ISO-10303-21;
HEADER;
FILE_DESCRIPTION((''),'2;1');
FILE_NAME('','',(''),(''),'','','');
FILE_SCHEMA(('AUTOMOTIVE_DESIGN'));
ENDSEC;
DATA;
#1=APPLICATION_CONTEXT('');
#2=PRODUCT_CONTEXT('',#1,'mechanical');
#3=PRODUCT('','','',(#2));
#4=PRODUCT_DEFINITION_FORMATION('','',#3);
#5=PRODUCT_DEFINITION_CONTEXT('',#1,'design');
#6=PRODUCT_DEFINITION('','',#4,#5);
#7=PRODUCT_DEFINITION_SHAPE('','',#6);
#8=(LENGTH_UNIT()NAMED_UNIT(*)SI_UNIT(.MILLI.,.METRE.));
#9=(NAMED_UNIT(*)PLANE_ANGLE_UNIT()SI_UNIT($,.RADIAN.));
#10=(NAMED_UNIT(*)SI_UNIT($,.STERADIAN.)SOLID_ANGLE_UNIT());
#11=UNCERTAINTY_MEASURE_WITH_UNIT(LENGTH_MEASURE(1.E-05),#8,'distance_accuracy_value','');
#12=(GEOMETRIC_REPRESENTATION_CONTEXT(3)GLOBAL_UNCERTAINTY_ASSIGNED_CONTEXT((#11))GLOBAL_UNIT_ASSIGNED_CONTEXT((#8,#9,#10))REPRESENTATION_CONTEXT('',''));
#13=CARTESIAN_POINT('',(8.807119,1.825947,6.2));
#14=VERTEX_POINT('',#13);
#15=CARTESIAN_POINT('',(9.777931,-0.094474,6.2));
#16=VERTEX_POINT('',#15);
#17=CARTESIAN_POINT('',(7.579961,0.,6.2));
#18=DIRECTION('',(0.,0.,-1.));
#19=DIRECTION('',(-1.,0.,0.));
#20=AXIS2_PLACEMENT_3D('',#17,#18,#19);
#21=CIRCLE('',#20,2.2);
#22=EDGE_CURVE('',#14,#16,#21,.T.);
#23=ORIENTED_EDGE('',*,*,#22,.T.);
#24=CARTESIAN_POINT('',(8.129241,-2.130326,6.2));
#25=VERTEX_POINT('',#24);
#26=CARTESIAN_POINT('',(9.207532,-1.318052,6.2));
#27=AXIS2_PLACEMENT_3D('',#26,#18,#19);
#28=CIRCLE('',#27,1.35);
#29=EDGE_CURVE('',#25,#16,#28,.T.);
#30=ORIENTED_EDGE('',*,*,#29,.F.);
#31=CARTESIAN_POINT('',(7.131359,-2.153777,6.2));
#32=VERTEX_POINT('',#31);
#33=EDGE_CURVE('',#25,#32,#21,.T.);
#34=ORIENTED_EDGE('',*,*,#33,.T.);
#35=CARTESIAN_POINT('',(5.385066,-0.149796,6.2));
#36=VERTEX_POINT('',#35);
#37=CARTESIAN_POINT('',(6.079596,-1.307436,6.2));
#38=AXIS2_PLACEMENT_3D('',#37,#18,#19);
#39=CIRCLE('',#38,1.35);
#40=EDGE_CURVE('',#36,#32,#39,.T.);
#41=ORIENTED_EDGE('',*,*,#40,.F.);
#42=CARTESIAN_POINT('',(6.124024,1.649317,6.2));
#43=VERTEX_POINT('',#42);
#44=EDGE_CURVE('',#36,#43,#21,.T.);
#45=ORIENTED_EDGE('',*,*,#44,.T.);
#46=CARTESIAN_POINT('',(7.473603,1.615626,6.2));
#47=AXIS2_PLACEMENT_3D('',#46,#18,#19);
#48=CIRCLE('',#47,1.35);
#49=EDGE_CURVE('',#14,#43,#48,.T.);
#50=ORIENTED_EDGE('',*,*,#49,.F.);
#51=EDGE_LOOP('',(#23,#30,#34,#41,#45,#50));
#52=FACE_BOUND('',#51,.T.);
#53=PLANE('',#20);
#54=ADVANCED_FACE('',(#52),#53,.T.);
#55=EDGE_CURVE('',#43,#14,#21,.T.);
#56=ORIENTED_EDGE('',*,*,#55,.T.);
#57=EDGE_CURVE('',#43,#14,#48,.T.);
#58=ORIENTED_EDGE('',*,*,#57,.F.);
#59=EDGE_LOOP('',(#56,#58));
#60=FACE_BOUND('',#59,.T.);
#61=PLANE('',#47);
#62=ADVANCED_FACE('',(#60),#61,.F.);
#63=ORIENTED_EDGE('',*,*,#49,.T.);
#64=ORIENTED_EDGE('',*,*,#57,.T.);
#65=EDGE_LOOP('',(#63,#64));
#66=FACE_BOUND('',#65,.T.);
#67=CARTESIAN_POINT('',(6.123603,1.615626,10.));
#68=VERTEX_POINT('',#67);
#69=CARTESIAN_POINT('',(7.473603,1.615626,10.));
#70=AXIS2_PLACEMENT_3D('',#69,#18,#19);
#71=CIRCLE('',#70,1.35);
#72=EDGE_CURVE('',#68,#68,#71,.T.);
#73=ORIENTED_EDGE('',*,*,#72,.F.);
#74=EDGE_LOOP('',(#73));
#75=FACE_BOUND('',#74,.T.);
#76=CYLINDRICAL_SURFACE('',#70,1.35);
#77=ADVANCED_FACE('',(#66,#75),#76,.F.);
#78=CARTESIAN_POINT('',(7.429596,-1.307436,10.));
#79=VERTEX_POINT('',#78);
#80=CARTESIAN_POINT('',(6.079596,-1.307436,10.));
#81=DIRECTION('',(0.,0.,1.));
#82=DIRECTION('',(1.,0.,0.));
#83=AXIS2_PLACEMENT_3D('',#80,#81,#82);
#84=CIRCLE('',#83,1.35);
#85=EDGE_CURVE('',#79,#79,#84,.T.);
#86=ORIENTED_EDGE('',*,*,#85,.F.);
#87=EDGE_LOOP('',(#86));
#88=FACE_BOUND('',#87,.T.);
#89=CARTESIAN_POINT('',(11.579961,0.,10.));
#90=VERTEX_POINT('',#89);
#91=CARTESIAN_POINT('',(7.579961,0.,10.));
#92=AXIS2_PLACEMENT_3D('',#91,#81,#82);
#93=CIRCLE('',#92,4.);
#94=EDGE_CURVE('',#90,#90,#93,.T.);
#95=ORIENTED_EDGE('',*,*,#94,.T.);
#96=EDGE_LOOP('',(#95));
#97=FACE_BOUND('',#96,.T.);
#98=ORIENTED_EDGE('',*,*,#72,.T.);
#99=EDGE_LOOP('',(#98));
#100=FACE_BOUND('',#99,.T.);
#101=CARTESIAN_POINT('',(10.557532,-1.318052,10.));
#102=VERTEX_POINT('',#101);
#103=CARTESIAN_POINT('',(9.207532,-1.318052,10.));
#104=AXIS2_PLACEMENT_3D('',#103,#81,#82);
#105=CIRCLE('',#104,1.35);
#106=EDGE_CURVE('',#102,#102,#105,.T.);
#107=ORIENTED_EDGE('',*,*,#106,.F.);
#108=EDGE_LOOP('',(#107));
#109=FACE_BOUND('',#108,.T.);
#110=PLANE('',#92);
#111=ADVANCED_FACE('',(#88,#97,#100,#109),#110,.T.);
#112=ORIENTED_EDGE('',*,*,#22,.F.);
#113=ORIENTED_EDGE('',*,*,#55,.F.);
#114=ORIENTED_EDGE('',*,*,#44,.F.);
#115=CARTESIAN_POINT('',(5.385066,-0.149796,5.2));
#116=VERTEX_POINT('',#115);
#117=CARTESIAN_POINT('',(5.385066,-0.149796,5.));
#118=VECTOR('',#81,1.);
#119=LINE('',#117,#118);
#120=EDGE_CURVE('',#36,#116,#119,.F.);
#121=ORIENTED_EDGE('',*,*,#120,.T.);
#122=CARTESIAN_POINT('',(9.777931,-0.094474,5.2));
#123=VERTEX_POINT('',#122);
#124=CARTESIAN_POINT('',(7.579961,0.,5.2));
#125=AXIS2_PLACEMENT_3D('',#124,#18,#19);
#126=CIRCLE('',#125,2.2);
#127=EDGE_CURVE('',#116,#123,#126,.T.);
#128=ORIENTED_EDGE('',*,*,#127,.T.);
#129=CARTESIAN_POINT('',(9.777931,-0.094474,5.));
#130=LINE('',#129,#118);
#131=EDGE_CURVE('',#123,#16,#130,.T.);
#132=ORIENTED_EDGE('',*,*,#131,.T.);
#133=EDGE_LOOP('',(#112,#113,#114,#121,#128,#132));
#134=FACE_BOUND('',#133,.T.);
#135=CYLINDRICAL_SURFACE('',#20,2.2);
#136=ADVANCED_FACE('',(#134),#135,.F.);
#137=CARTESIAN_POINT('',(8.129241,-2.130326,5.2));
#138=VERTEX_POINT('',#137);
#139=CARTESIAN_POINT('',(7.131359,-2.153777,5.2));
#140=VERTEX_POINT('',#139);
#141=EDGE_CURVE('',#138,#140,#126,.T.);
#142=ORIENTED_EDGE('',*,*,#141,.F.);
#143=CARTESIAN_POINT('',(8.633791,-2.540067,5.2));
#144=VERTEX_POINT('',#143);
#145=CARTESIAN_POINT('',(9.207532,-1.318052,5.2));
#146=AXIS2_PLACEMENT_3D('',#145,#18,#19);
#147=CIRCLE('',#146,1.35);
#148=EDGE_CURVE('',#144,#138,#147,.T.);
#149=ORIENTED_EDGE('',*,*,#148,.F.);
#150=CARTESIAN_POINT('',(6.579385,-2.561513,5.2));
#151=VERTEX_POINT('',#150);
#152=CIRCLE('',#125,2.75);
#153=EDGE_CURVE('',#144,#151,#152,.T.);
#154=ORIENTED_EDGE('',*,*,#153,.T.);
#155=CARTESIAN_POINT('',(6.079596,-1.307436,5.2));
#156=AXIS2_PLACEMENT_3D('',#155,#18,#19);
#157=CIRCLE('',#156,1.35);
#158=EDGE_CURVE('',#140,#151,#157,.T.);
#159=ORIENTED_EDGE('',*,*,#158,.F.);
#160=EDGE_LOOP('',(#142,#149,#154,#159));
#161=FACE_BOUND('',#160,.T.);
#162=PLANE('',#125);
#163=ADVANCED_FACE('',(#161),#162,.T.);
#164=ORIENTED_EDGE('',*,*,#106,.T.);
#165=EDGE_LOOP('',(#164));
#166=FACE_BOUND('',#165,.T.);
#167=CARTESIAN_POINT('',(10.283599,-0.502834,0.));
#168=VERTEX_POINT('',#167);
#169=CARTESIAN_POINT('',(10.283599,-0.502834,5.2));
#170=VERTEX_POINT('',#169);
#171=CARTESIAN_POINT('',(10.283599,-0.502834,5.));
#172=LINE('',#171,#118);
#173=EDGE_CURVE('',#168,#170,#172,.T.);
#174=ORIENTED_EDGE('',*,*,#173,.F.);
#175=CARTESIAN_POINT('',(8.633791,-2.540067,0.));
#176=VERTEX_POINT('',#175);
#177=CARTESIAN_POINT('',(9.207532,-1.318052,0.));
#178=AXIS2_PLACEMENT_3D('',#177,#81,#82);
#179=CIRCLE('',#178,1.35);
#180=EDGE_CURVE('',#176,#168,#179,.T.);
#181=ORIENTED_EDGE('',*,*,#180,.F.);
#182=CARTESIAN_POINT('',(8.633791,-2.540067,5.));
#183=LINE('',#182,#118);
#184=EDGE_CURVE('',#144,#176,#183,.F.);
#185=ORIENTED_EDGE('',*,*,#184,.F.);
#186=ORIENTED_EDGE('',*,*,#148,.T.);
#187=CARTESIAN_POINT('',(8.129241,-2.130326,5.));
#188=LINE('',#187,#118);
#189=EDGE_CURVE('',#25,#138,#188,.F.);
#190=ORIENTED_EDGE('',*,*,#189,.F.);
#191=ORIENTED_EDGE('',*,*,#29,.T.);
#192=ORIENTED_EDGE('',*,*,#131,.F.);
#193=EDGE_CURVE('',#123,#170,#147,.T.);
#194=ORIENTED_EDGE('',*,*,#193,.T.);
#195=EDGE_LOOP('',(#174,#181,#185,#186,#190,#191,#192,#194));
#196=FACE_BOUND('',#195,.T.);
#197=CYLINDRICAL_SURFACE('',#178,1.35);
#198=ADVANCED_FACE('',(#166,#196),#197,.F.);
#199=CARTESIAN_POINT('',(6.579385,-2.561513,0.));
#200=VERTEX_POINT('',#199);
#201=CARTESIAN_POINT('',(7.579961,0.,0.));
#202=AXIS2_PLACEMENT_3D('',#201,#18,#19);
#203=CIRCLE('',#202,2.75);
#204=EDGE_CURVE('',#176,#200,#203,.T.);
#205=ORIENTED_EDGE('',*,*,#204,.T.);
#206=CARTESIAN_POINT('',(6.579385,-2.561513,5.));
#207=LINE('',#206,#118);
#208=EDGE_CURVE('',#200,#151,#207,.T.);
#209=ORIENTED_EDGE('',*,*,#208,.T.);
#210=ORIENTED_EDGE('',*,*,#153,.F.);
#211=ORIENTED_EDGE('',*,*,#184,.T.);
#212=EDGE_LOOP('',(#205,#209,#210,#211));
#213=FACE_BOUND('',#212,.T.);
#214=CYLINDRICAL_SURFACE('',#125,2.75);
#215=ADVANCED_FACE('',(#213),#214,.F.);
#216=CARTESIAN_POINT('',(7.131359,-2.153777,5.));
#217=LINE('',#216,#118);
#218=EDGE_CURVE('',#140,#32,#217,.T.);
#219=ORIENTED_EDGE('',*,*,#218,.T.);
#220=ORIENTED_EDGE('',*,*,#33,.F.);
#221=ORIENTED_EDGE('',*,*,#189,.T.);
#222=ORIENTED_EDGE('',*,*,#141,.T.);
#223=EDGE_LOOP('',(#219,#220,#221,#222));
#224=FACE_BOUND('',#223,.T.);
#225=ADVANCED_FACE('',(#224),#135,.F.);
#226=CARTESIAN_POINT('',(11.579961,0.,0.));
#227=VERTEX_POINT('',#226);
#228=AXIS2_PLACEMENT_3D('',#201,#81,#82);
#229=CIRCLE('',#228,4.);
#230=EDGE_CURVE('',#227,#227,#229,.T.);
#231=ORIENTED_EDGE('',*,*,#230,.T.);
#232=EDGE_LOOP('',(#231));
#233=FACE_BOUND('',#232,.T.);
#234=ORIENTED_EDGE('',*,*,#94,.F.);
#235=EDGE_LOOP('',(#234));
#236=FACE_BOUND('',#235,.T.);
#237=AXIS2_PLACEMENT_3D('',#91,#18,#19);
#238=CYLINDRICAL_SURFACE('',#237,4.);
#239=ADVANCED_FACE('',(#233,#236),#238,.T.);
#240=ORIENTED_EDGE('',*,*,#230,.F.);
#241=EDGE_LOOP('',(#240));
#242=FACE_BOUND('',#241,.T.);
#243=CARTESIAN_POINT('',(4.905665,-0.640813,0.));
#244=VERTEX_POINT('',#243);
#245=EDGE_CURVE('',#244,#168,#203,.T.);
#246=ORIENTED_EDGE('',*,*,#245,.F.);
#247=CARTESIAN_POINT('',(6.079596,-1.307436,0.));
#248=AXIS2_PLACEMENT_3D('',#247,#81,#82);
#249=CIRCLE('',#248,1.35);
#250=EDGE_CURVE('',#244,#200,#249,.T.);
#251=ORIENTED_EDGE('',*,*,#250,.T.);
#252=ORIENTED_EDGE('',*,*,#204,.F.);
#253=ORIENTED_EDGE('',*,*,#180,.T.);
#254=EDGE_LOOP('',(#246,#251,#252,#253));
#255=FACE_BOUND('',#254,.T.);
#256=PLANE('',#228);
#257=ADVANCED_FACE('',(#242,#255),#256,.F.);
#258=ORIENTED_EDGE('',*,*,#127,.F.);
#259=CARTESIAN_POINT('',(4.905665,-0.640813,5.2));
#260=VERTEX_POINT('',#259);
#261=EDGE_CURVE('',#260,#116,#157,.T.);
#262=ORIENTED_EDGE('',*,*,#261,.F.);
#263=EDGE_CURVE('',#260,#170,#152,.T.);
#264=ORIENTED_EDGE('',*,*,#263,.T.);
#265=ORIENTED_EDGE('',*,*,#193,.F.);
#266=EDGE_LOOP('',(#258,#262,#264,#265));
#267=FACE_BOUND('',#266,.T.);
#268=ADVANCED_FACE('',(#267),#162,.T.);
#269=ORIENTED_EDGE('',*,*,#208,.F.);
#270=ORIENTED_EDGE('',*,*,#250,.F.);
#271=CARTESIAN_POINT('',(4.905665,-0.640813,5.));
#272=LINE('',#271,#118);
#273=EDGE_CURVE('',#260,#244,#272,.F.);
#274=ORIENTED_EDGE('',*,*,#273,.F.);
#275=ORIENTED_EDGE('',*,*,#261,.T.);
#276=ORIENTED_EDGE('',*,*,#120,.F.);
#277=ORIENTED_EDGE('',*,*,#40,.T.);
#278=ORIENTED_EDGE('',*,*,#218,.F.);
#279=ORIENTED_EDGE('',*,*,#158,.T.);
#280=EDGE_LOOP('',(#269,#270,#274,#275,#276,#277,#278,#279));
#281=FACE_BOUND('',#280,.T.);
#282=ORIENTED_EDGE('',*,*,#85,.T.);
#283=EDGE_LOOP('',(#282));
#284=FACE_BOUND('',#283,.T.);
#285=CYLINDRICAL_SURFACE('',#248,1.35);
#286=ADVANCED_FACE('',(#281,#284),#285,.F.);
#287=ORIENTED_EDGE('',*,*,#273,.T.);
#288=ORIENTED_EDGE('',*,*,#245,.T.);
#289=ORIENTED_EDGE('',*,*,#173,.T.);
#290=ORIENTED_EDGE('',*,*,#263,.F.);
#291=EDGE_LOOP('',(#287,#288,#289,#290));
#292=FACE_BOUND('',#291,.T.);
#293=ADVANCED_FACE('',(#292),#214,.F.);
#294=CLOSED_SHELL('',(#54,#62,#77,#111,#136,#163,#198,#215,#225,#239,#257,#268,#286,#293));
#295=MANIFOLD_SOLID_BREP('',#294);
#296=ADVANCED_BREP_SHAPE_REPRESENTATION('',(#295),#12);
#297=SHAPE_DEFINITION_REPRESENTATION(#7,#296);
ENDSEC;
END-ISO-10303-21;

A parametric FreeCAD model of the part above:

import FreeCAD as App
import Part
import Sketcher
from FreeCAD import Vector
Q = App.Units.Quantity

doc = App.newDocument("Part")
body = doc.addObject("PartDesign::Body", "Body")

# Sketch on XY plane
sketch1 = body.newObject("Sketcher::SketchObject", "Sketch")
sketch1.AttachmentSupport = (doc.getObject("XY_Plane"), [""])
sketch1.MapMode = "FlatFace"
sketch1.addGeometry(Part.Circle(Vector(7.579961, 0, 0), Vector(0, 0, 1), 4), False)
sketch1.addConstraint(Sketcher.Constraint("PointOnObject", 0, 3, -1))
sketch1.addConstraint(Sketcher.Constraint("Diameter", 0, Q("8 mm")))
sketch1.addConstraint(Sketcher.Constraint("DistanceX", -1, 1, 0, 3, Q("7.579961 mm")))
pad1 = body.newObject("PartDesign::Pad", "Pad")
pad1.Profile = sketch1
pad1.Length = 10

# Sketch on XY plane
sketch2 = body.newObject("Sketcher::SketchObject", "Sketch001")
sketch2.AttachmentSupport = (doc.getObject("XY_Plane"), [""])
sketch2.MapMode = "FlatFace"
sketch2.addGeometry(Part.Circle(Vector(7.579961, 0, 0), Vector(0, 0, 1), 2.75), False)
sketch2.addConstraint(Sketcher.Constraint("PointOnObject", 0, 3, -1))
sketch2.addConstraint(Sketcher.Constraint("Diameter", 0, Q("5.5 mm")))
sketch2.addConstraint(Sketcher.Constraint("DistanceX", -1, 1, 0, 3, Q("7.579961 mm")))
pocket1 = body.newObject("PartDesign::Pocket", "Pocket")
pocket1.Profile = sketch2
pocket1.Length = 5.2
pocket1.Reversed = True

# Sketch on XY plane
sketch3 = body.newObject("Sketcher::SketchObject", "Sketch002")
sketch3.AttachmentSupport = (doc.getObject("XY_Plane"), [""])
sketch3.MapMode = "FlatFace"
sketch3.AttachmentOffset = App.Placement(Vector(0, 0, 5.2), App.Rotation())
sketch3.addGeometry(Part.Circle(Vector(7.579961, 0, 0), Vector(0, 0, 1), 2.2), False)
sketch3.addConstraint(Sketcher.Constraint("PointOnObject", 0, 3, -1))
sketch3.addConstraint(Sketcher.Constraint("Diameter", 0, Q("4.4 mm")))
sketch3.addConstraint(Sketcher.Constraint("DistanceX", -1, 1, 0, 3, Q("7.579961 mm")))
pocket2 = body.newObject("PartDesign::Pocket", "Pocket001")
pocket2.Profile = sketch3
pocket2.Length = 1
pocket2.Reversed = True

# Sketch on XY plane
sketch4 = body.newObject("Sketcher::SketchObject", "Sketch003")
sketch4.AttachmentSupport = (doc.getObject("XY_Plane"), [""])
sketch4.MapMode = "FlatFace"
sketch4.AttachmentOffset = App.Placement(Vector(0, 0, 6.2), App.Rotation())
sketch4.addGeometry(Part.Circle(Vector(7.473603, 1.615626, 0), Vector(0, 0, 1), 1.35), False)
sketch4.addConstraint(Sketcher.Constraint("Diameter", 0, Q("2.7 mm")))
sketch4.addConstraint(Sketcher.Constraint("DistanceX", -1, 1, 0, 3, Q("7.473603 mm")))
sketch4.addConstraint(Sketcher.Constraint("DistanceY", -1, 1, 0, 3, Q("1.615626 mm")))
pocket3 = body.newObject("PartDesign::Pocket", "Pocket002")
pocket3.Profile = sketch4
pocket3.Type = "ThroughAll"
pocket3.Reversed = True

# Sketch on XY plane
sketch5 = body.newObject("Sketcher::SketchObject", "Sketch004")
sketch5.AttachmentSupport = (doc.getObject("XY_Plane"), [""])
sketch5.MapMode = "FlatFace"
sketch5.AttachmentOffset = App.Placement(Vector(0, 0, 10), App.Rotation())
sketch5.addGeometry(Part.Circle(Vector(6.079596, -1.307436, 0), Vector(0, 0, 1), 1.35), False)
sketch5.addConstraint(Sketcher.Constraint("Diameter", 0, Q("2.7 mm")))
sketch5.addConstraint(Sketcher.Constraint("DistanceX", -1, 1, 0, 3, Q("6.079596 mm")))
sketch5.addConstraint(Sketcher.Constraint("DistanceY", 0, 3, -1, 1, Q("1.307436 mm")))
pocket4 = body.newObject("PartDesign::Pocket", "Pocket003")
pocket4.Profile = sketch5
pocket4.Type = "ThroughAll"

# Sketch on XY plane
sketch6 = body.newObject("Sketcher::SketchObject", "Sketch005")
sketch6.AttachmentSupport = (doc.getObject("XY_Plane"), [""])
sketch6.MapMode = "FlatFace"
sketch6.AttachmentOffset = App.Placement(Vector(0, 0, 10), App.Rotation())
sketch6.addGeometry(Part.Circle(Vector(9.207532, -1.318052, 0), Vector(0, 0, 1), 1.35), False)
sketch6.addConstraint(Sketcher.Constraint("Diameter", 0, Q("2.7 mm")))
sketch6.addConstraint(Sketcher.Constraint("DistanceX", -1, 1, 0, 3, Q("9.207532 mm")))
sketch6.addConstraint(Sketcher.Constraint("DistanceY", 0, 3, -1, 1, Q("1.318052 mm")))
pocket5 = body.newObject("PartDesign::Pocket", "Pocket004")
pocket5.Profile = sketch6
pocket5.Type = "ThroughAll"

doc.recompute()
